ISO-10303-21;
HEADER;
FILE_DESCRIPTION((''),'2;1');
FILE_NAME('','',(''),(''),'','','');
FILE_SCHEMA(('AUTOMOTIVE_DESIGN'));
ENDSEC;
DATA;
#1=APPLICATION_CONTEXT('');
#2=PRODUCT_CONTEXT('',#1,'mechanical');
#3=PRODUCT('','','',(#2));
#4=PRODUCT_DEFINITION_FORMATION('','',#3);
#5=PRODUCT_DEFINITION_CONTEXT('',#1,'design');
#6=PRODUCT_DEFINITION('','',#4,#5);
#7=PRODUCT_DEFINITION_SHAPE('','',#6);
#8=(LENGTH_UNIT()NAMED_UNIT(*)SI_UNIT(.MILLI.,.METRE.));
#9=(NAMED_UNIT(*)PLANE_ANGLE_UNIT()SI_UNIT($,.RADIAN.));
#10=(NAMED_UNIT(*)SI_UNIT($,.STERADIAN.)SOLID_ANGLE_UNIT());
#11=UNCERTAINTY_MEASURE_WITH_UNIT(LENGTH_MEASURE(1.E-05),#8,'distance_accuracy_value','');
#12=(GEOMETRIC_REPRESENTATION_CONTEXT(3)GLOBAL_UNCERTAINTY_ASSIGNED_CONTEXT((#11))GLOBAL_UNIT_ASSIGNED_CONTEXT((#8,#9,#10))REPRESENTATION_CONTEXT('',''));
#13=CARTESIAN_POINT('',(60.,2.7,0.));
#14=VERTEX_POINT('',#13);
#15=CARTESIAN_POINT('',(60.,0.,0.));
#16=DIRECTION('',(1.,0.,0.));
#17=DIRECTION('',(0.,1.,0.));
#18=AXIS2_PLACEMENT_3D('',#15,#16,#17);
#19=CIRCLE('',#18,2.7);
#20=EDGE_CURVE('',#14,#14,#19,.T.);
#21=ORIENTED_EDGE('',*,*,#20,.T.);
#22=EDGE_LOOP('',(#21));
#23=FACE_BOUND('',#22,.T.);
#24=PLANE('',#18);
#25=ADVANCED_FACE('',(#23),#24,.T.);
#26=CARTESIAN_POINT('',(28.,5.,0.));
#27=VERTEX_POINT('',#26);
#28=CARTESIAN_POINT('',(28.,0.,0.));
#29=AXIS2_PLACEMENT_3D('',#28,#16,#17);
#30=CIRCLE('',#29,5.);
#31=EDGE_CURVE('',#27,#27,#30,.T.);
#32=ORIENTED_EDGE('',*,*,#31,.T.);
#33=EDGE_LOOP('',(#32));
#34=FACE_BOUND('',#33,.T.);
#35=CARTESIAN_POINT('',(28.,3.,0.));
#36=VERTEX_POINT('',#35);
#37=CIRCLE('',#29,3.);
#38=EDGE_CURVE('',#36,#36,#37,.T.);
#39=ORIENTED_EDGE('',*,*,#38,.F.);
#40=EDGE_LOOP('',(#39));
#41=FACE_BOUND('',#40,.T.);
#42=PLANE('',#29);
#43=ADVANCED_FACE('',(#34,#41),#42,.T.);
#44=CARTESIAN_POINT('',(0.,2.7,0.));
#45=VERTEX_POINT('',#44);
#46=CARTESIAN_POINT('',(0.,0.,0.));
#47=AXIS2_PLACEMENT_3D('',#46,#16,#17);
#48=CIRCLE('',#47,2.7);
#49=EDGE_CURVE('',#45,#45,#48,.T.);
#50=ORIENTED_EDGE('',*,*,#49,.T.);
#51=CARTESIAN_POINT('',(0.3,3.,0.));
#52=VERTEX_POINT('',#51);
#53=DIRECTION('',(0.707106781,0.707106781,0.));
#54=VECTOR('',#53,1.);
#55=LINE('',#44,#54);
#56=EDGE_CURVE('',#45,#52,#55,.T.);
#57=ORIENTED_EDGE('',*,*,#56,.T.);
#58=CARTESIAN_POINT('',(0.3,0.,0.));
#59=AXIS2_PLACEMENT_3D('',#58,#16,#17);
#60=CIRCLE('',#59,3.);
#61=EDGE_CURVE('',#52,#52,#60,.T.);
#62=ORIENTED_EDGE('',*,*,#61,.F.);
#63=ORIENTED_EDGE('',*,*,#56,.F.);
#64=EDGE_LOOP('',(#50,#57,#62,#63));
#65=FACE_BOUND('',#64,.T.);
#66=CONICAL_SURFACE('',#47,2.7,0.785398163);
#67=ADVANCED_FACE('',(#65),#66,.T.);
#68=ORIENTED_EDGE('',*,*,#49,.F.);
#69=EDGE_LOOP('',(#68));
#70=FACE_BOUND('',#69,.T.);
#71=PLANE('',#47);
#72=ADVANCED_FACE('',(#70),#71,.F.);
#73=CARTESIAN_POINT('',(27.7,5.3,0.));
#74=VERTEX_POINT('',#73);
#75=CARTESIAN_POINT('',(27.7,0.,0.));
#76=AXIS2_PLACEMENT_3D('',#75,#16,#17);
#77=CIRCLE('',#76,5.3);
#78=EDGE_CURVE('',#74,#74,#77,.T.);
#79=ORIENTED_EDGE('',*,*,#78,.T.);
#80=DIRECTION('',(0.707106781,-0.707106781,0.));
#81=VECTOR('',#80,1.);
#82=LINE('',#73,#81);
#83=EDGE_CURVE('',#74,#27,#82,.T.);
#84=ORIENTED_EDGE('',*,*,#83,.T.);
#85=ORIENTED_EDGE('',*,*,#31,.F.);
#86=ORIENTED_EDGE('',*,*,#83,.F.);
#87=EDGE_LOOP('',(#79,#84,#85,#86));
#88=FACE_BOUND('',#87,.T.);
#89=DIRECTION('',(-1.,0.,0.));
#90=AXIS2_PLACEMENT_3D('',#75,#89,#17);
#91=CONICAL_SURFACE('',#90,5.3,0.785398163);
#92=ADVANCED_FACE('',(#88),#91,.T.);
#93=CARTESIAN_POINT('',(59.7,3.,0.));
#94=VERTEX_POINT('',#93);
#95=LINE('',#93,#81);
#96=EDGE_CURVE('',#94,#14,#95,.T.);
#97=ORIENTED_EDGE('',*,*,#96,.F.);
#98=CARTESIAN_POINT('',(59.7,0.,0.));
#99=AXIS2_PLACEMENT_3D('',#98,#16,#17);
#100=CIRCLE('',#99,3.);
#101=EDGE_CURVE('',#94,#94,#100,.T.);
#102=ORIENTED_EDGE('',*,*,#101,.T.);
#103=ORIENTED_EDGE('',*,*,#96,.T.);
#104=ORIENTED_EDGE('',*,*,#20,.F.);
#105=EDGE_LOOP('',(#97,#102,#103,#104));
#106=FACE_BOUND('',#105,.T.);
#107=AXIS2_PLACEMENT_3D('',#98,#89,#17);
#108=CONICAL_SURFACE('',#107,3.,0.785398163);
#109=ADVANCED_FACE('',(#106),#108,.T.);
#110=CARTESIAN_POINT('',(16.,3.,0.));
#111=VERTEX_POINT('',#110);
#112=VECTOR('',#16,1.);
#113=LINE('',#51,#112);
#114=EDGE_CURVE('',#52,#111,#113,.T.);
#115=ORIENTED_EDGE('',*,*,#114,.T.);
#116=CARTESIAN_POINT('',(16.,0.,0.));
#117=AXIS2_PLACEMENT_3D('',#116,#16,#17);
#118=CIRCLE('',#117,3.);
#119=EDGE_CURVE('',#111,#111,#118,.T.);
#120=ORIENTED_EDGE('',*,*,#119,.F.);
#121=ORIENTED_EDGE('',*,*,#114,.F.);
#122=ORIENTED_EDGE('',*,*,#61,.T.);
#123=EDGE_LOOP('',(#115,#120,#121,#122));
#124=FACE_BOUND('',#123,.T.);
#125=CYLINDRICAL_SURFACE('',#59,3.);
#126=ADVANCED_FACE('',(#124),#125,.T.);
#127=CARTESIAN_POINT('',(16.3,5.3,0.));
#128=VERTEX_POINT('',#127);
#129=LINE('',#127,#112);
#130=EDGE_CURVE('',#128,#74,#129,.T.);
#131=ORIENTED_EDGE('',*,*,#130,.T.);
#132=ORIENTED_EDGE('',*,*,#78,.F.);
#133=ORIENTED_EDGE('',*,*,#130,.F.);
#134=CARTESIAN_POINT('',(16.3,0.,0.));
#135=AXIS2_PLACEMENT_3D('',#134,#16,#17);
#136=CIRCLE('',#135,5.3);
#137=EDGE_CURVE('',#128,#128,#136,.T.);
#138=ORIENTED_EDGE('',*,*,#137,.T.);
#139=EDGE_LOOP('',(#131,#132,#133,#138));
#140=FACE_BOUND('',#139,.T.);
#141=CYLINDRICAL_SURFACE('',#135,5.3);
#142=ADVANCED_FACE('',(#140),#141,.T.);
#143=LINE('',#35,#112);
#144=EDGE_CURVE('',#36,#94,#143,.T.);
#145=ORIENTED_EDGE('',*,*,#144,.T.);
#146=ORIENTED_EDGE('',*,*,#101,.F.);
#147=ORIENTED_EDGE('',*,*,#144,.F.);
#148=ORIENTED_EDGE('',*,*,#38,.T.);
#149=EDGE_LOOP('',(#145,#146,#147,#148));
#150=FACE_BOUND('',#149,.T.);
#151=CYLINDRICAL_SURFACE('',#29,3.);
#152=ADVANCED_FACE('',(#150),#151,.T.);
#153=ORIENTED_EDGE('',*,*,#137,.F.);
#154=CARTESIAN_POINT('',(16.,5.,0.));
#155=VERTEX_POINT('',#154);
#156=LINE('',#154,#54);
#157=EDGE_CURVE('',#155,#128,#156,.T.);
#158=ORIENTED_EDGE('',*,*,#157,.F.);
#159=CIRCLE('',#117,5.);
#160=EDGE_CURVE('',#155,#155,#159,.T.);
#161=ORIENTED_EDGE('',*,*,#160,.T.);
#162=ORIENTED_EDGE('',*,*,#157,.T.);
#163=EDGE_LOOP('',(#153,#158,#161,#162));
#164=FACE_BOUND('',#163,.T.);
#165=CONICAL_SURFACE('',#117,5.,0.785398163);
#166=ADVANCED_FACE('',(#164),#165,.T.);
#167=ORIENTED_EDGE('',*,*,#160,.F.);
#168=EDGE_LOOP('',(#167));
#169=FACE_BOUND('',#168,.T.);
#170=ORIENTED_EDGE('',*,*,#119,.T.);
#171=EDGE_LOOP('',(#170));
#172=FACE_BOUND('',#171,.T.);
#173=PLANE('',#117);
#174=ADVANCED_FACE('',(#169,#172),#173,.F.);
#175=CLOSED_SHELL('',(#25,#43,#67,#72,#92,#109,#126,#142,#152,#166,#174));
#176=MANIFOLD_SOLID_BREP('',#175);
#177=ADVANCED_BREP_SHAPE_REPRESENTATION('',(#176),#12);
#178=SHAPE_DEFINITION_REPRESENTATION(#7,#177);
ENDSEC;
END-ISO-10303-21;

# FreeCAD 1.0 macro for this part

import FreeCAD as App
import Part
import Sketcher

V = App.Vector
Q = App.Units.Quantity

doc = App.newDocument("Part")
params = doc.addObject("Spreadsheet::Sheet", "Params")
for row, (alias, value) in enumerate([
    ("sketch1_width", "60 mm"),
    ("sketch1_height", "2 mm"),
    ("sketch1_width2", "31.7 mm"),
    ("sketch1_width3", "11.4 mm"),
    ("sketch1_width4", "15.7 mm"),
    ("revolution_angle", "360 deg"),
], start=1):
    params.set(f"A{row}", alias)
    params.set(f"B{row}", "=" + value)
    params.setAlias(f"B{row}", alias)

body = doc.addObject("PartDesign::Body", "Body")

# Sketch on XY plane
sketch1 = doc.addObject("Sketcher::SketchObject", "Sketch")
body.addObject(sketch1)
sketch1.AttachmentSupport = (doc.XY_Plane, [""])
sketch1.MapMode = "FlatFace"
sketch1.addGeometry([
    Part.LineSegment(V(0, 0, 0), V(60, 0, 0)),  # 0
    Part.LineSegment(V(60, 0, 0), V(60, 2.7, 0)),  # 1
    Part.LineSegment(V(60, 2.7, 0), V(59.7, 3, 0)),  # 2
    Part.LineSegment(V(59.7, 3, 0), V(28, 3, 0)),  # 3
    Part.LineSegment(V(28, 3, 0), V(28, 5, 0)),  # 4
    Part.LineSegment(V(28, 5, 0), V(27.7, 5.3, 0)),  # 5
    Part.LineSegment(V(27.7, 5.3, 0), V(16.3, 5.3, 0)),  # 6
    Part.LineSegment(V(16.3, 5.3, 0), V(16, 5, 0)),  # 7
    Part.LineSegment(V(16, 5, 0), V(16, 3, 0)),  # 8
    Part.LineSegment(V(16, 3, 0), V(0.3, 3, 0)),  # 9
    Part.LineSegment(V(0.3, 3, 0), V(0, 2.7, 0)),  # 10
    Part.LineSegment(V(0, 2.7, 0), V(0, 0, 0)),  # 11
], False)
sketch1.addConstraint([
    Sketcher.Constraint("Coincident", 0, 2, 1, 1),
    Sketcher.Constraint("Coincident", 1, 2, 2, 1),
    Sketcher.Constraint("Coincident", 2, 2, 3, 1),
    Sketcher.Constraint("Coincident", 3, 2, 4, 1),
    Sketcher.Constraint("Coincident", 4, 2, 5, 1),
    Sketcher.Constraint("Coincident", 5, 2, 6, 1),
    Sketcher.Constraint("Coincident", 6, 2, 7, 1),
    Sketcher.Constraint("Coincident", 7, 2, 8, 1),
    Sketcher.Constraint("Coincident", 8, 2, 9, 1),
    Sketcher.Constraint("Coincident", 9, 2, 10, 1),
    Sketcher.Constraint("Coincident", 10, 2, 11, 1),
    Sketcher.Constraint("Coincident", 11, 2, 0, 1),
    Sketcher.Constraint("Horizontal", 0),
    Sketcher.Constraint("Vertical", 1),
    Sketcher.Constraint("Horizontal", 3),
    Sketcher.Constraint("Vertical", 4),
    Sketcher.Constraint("Horizontal", 6),
    Sketcher.Constraint("Vertical", 8),
    Sketcher.Constraint("Horizontal", 9),
    Sketcher.Constraint("Vertical", 11),
    Sketcher.Constraint("Coincident", 11, 2, -1, 1),
    Sketcher.Constraint("Parallel", 2, 5),
    Sketcher.Constraint("Perpendicular", 5, 7),
    Sketcher.Constraint("Parallel", 7, 10),
    Sketcher.Constraint("Horizontal", 4, 2, 7, 2),
    Sketcher.Constraint("Horizontal", 3, 2, 8, 2),
    Sketcher.Constraint("Horizontal", 1, 2, 10, 2),
    Sketcher.Constraint("Equal", 2, 5),
    Sketcher.Constraint("Equal", 5, 7),
    Sketcher.Constraint("DistanceX", 0, 1, 0, 2, Q("60 mm")),
    Sketcher.Constraint("DistanceY", 4, 1, 4, 2, Q("2 mm")),
    Sketcher.Constraint("DistanceX", 3, 2, 3, 1, Q("31.7 mm")),
    Sketcher.Constraint("DistanceX", 6, 2, 6, 1, Q("11.4 mm")),
    Sketcher.Constraint("DistanceX", 9, 2, 9, 1, Q("15.7 mm")),
    Sketcher.Constraint("DistanceY", 1, 1, 1, 2, Q("2.7 mm")),
])
sketch1.setExpression("Constraints[29]", "Params.sketch1_width")
sketch1.setExpression("Constraints[30]", "Params.sketch1_height")
sketch1.setExpression("Constraints[31]", "Params.sketch1_width2")
sketch1.setExpression("Constraints[32]", "Params.sketch1_width3")
sketch1.setExpression("Constraints[33]", "Params.sketch1_width4")
revolution = doc.addObject("PartDesign::Revolution", "Revolution")
body.addObject(revolution)
revolution.Profile = sketch1
revolution.ReferenceAxis = (sketch1, ["H_Axis"])
revolution.setExpression("Angle", "Params.revolution_angle")

doc.recompute()
